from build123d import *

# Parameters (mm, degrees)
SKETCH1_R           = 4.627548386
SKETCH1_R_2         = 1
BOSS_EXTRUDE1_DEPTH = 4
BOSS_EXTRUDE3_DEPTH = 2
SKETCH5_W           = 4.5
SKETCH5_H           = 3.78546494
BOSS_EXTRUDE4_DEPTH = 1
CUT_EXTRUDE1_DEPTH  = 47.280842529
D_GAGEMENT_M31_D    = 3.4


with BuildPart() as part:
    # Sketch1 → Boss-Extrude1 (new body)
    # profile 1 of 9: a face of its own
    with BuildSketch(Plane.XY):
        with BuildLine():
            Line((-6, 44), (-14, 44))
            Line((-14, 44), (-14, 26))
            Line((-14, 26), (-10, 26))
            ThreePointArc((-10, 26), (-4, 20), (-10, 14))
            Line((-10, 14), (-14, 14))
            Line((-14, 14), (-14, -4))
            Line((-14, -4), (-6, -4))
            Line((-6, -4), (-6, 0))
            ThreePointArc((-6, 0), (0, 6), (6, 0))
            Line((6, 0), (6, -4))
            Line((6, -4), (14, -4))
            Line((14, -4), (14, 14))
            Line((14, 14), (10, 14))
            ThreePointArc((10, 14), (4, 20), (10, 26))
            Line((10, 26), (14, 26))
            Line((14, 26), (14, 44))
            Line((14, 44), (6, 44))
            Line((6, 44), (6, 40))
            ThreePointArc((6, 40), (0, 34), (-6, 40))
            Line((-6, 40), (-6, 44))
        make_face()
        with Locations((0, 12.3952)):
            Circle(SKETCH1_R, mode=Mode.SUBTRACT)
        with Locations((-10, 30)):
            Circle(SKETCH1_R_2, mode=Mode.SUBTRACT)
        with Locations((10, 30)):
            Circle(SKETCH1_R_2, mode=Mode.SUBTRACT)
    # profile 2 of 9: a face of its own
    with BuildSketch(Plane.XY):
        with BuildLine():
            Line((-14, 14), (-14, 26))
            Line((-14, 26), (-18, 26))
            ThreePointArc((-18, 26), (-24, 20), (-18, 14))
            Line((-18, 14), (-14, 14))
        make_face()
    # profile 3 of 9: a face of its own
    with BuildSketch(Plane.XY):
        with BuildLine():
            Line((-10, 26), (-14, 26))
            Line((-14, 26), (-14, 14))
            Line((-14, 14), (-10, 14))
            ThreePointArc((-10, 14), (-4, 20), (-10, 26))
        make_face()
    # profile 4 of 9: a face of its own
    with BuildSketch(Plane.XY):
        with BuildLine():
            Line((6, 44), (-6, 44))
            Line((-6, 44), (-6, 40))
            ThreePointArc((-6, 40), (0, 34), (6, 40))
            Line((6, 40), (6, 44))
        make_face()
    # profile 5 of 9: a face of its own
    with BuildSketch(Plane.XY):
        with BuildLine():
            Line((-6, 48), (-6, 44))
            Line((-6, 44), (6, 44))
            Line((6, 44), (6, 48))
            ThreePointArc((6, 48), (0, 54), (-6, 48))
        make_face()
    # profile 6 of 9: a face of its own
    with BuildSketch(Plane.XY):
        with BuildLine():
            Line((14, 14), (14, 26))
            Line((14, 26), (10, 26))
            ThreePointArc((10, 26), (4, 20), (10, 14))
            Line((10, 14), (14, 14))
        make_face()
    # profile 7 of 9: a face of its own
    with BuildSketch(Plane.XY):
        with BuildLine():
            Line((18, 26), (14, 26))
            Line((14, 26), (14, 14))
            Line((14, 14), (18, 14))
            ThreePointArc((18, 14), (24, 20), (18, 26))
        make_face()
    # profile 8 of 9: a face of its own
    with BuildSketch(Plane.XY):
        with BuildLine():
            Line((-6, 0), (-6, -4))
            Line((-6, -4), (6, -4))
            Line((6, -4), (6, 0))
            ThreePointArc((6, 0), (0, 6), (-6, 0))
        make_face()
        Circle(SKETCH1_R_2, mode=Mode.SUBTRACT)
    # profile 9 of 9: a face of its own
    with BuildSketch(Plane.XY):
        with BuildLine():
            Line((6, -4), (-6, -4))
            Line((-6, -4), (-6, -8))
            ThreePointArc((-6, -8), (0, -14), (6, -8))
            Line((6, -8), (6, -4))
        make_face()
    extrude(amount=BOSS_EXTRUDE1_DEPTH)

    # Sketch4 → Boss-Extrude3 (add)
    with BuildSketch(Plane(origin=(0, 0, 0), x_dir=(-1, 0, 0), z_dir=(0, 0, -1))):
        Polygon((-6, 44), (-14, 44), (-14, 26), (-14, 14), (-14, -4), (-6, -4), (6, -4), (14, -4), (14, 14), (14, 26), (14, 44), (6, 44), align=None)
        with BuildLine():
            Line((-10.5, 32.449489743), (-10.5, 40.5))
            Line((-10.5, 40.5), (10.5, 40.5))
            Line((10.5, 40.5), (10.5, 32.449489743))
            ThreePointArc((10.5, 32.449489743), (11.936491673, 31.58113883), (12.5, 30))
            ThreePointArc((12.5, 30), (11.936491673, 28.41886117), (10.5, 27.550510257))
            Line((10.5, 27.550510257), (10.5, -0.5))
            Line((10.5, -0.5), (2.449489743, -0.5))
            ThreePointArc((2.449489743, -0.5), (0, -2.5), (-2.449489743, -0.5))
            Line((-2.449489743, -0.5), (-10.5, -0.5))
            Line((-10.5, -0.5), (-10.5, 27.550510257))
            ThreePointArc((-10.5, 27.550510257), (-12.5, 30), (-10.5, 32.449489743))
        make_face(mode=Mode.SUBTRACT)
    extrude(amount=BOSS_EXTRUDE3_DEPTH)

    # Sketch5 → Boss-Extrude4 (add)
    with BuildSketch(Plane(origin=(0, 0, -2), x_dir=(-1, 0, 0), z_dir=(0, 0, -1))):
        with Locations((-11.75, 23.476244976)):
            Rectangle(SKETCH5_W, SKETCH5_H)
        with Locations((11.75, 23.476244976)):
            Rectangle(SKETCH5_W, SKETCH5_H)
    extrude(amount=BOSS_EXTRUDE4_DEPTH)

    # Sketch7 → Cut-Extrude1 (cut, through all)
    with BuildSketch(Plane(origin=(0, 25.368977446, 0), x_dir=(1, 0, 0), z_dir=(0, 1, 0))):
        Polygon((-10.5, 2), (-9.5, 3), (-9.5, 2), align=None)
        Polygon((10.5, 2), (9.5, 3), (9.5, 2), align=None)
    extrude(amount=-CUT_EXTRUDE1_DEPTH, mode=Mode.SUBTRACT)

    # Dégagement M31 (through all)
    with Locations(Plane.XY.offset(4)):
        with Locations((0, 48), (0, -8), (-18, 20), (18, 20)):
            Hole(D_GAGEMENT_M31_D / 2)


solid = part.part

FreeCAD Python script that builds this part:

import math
import FreeCAD as App
import Part
import Sketcher


def add_polygon(sketch, points):
    """Adds a closed chain of lines whose ends are joined by coincident constraints."""
    first, n = sketch.GeometryCount, len(points)
    for a, b in zip(points, points[1:] + points[:1]):
        sketch.addGeometry(Part.LineSegment(App.Vector(*a, 0), App.Vector(*b, 0)), False)
    for i in range(n):
        sketch.addConstraint(Sketcher.Constraint("Coincident", first + i, 2, first + (i + 1) % n, 1))

doc = App.newDocument("Part")
body = doc.addObject("PartDesign::Body", "Body")

sketch1 = doc.addObject("Sketcher::SketchObject", "Sketch")
body.addObject(sketch1)
sketch1.AttachmentSupport = (doc.XY_Plane, [""])
sketch1.MapMode = "FlatFace"
sketch1.addGeometry(Part.LineSegment(App.Vector(-6, 44, 0), App.Vector(-14, 44, 0)), False)
sketch1.addGeometry(Part.LineSegment(App.Vector(-14, 44, 0), App.Vector(-14, 26, 0)), False)
sketch1.addGeometry(Part.LineSegment(App.Vector(-14, 26, 0), App.Vector(-18, 26, 0)), False)
sketch1.addGeometry(Part.ArcOfCircle(Part.Circle(App.Vector(-18, 20, 0), App.Vector(0, 0, 1), 6), math.radians(90), math.radians(270)), False)
sketch1.addGeometry(Part.LineSegment(App.Vector(-18, 14, 0), App.Vector(-14, 14, 0)), False)
sketch1.addGeometry(Part.LineSegment(App.Vector(-14, 14, 0), App.Vector(-14, -4, 0)), False)
sketch1.addGeometry(Part.LineSegment(App.Vector(-14, -4, 0), App.Vector(-6, -4, 0)), False)
sketch1.addGeometry(Part.LineSegment(App.Vector(-6, -4, 0), App.Vector(-6, -8, 0)), False)
sketch1.addGeometry(Part.ArcOfCircle(Part.Circle(App.Vector(0, -8, 0), App.Vector(0, 0, 1), 6), math.radians(180), math.radians(360)), False)
sketch1.addGeometry(Part.LineSegment(App.Vector(6, -8, 0), App.Vector(6, -4, 0)), False)
sketch1.addGeometry(Part.LineSegment(App.Vector(6, -4, 0), App.Vector(14, -4, 0)), False)
sketch1.addGeometry(Part.LineSegment(App.Vector(14, -4, 0), App.Vector(14, 14, 0)), False)
sketch1.addGeometry(Part.LineSegment(App.Vector(14, 14, 0), App.Vector(18, 14, 0)), False)
sketch1.addGeometry(Part.ArcOfCircle(Part.Circle(App.Vector(18, 20, 0), App.Vector(0, 0, 1), 6), math.radians(-90), math.radians(90)), False)
sketch1.addGeometry(Part.LineSegment(App.Vector(18, 26, 0), App.Vector(14, 26, 0)), False)
sketch1.addGeometry(Part.LineSegment(App.Vector(14, 26, 0), App.Vector(14, 44, 0)), False)
sketch1.addGeometry(Part.LineSegment(App.Vector(14, 44, 0), App.Vector(6, 44, 0)), False)
sketch1.addGeometry(Part.LineSegment(App.Vector(6, 44, 0), App.Vector(6, 48, 0)), False)
sketch1.addGeometry(Part.ArcOfCircle(Part.Circle(App.Vector(0, 48, 0), App.Vector(0, 0, 1), 6), math.radians(0), math.radians(180)), False)
sketch1.addGeometry(Part.LineSegment(App.Vector(-6, 48, 0), App.Vector(-6, 44, 0)), False)
sketch1.addGeometry(Part.Circle(App.Vector(0, 12.3952, 0), App.Vector(0, 0, 1), 4.627548), False)
sketch1.addGeometry(Part.Circle(App.Vector(-10, 30, 0), App.Vector(0, 0, 1), 1), False)
sketch1.addGeometry(Part.Circle(App.Vector(10, 30, 0), App.Vector(0, 0, 1), 1), False)
sketch1.addGeometry(Part.Circle(App.Vector(0, 0, 0), App.Vector(0, 0, 1), 1), False)
sketch1.addConstraint(Sketcher.Constraint("Coincident", 0, 2, 1, 1))
sketch1.addConstraint(Sketcher.Constraint("Coincident", 1, 2, 2, 1))
sketch1.addConstraint(Sketcher.Constraint("Tangent", 2, 2, 3, 1))
sketch1.addConstraint(Sketcher.Constraint("Tangent", 3, 2, 4, 1))
sketch1.addConstraint(Sketcher.Constraint("Coincident", 4, 2, 5, 1))
sketch1.addConstraint(Sketcher.Constraint("Coincident", 5, 2, 6, 1))
sketch1.addConstraint(Sketcher.Constraint("Coincident", 6, 2, 7, 1))
sketch1.addConstraint(Sketcher.Constraint("Tangent", 7, 2, 8, 1))
sketch1.addConstraint(Sketcher.Constraint("Tangent", 8, 2, 9, 1))
sketch1.addConstraint(Sketcher.Constraint("Coincident", 9, 2, 10, 1))
sketch1.addConstraint(Sketcher.Constraint("Coincident", 10, 2, 11, 1))
sketch1.addConstraint(Sketcher.Constraint("Coincident", 11, 2, 12, 1))
sketch1.addConstraint(Sketcher.Constraint("Tangent", 12, 2, 13, 1))
sketch1.addConstraint(Sketcher.Constraint("Tangent", 13, 2, 14, 1))
sketch1.addConstraint(Sketcher.Constraint("Coincident", 14, 2, 15, 1))
sketch1.addConstraint(Sketcher.Constraint("Coincident", 15, 2, 16, 1))
sketch1.addConstraint(Sketcher.Constraint("Coincident", 16, 2, 17, 1))
sketch1.addConstraint(Sketcher.Constraint("Tangent", 17, 2, 18, 1))
sketch1.addConstraint(Sketcher.Constraint("Tangent", 18, 2, 19, 1))
sketch1.addConstraint(Sketcher.Constraint("Coincident", 19, 2, 0, 1))
sketch1.addConstraint(Sketcher.Constraint("Horizontal", 0))
sketch1.addConstraint(Sketcher.Constraint("Vertical", 1))
sketch1.addConstraint(Sketcher.Constraint("Horizontal", 2))
sketch1.addConstraint(Sketcher.Constraint("Horizontal", 4))
sketch1.addConstraint(Sketcher.Constraint("Vertical", 5))
sketch1.addConstraint(Sketcher.Constraint("Horizontal", 6))
sketch1.addConstraint(Sketcher.Constraint("Vertical", 7))
sketch1.addConstraint(Sketcher.Constraint("Vertical", 9))
sketch1.addConstraint(Sketcher.Constraint("Horizontal", 10))
sketch1.addConstraint(Sketcher.Constraint("Vertical", 11))
sketch1.addConstraint(Sketcher.Constraint("Horizontal", 12))
sketch1.addConstraint(Sketcher.Constraint("Horizontal", 14))
sketch1.addConstraint(Sketcher.Constraint("Vertical", 15))
sketch1.addConstraint(Sketcher.Constraint("Horizontal", 16))
sketch1.addConstraint(Sketcher.Constraint("Vertical", 17))
sketch1.addConstraint(Sketcher.Constraint("Vertical", 19))
sketch1.addConstraint(Sketcher.Constraint("Coincident", 23, 3, -1, 1))
sketch1.addConstraint(Sketcher.Constraint("Equal", 3, 8))
sketch1.addConstraint(Sketcher.Constraint("Equal", 8, 13))
sketch1.addConstraint(Sketcher.Constraint("Equal", 13, 18))
sketch1.addConstraint(Sketcher.Constraint("Equal", 21, 22))
sketch1.addConstraint(Sketcher.Constraint("Equal", 22, 23))
sketch1.addConstraint(Sketcher.Constraint("Symmetric", 3, 3, 13, 3, -2))
sketch1.addConstraint(Sketcher.Constraint("Symmetric", 21, 3, 22, 3, -2))
sketch1.addConstraint(Sketcher.Constraint("Symmetric", 6, 2, 9, 2, -2))
sketch1.addConstraint(Sketcher.Constraint("Symmetric", 0, 2, 15, 2, -2))
sketch1.addConstraint(Sketcher.Constraint("PointOnObject", 18, 3, -2))
sketch1.addConstraint(Sketcher.Constraint("PointOnObject", 20, 3, -2))
sketch1.addConstraint(Sketcher.Constraint("Vertical", 1, 2, 4, 2))
sketch1.addConstraint(Sketcher.Constraint("Vertical", 11, 2, 14, 2))
sketch1.addConstraint(Sketcher.Constraint("Equal", 1, 5))
sketch1.addConstraint(Sketcher.Constraint("Equal", 14, 7))
sketch1.addConstraint(Sketcher.Constraint("Equal", 9, 17))
sketch1.addConstraint(Sketcher.Constraint("Diameter", 21, 2.0))
sketch1.addConstraint(Sketcher.Constraint("Radius", 3, 6.0))
sketch1.addConstraint(Sketcher.Constraint("DistanceX", 0, 2, 0, 1, 8.0))
sketch1.addConstraint(Sketcher.Constraint("DistanceX", 2, 2, 2, 1, 4.0))
sketch1.addConstraint(Sketcher.Constraint("DistanceY", 1, 2, 1, 1, 18.0))
sketch1.addConstraint(Sketcher.Constraint("DistanceY", -1, 1, 3, 3, 20.0))
sketch1.addConstraint(Sketcher.Constraint("DistanceX", 21, 3, -1, 1, 10.0))
sketch1.addConstraint(Sketcher.Constraint("DistanceY", -1, 1, 21, 3, 30.0))
sketch1.addConstraint(Sketcher.Constraint("Diameter", 20, 9.255097))
sketch1.addConstraint(Sketcher.Constraint("DistanceY", -1, 1, 20, 3, 12.3952))
pad1 = doc.addObject("PartDesign::Pad", "Pad")
body.addObject(pad1)
pad1.Profile = sketch1
pad1.Length = 4

sketch2 = doc.addObject("Sketcher::SketchObject", "Sketch001")
body.addObject(sketch2)
sketch2.AttachmentSupport = (doc.XY_Plane, [""])
sketch2.MapMode = "FlatFace"
add_polygon(sketch2, [(14, 44), (14, -4), (-14, -4), (-14, 44)])
sketch2.addGeometry(Part.ArcOfCircle(Part.Circle(App.Vector(10, 30, 0), App.Vector(0, 0, 1), 2.5), math.radians(-78.463041), math.radians(78.463041)), False)
sketch2.addGeometry(Part.LineSegment(App.Vector(10.5, 32.44949, 0), App.Vector(10.5, 40.5, 0)), False)
sketch2.addGeometry(Part.LineSegment(App.Vector(10.5, 40.5, 0), App.Vector(-10.5, 40.5, 0)), False)
sketch2.addGeometry(Part.LineSegment(App.Vector(-10.5, 40.5, 0), App.Vector(-10.5, 32.44949, 0)), False)
sketch2.addGeometry(Part.ArcOfCircle(Part.Circle(App.Vector(-10, 30, 0), App.Vector(0, 0, 1), 2.5), math.radians(101.536959), math.radians(180)), False)
sketch2.addGeometry(Part.ArcOfCircle(Part.Circle(App.Vector(-10, 30, 0), App.Vector(0, 0, 1), 2.5), math.radians(-180), math.radians(-101.536959)), False)
sketch2.addGeometry(Part.LineSegment(App.Vector(-10.5, 27.55051, 0), App.Vector(-10.5, -0.5, 0)), False)
sketch2.addGeometry(Part.LineSegment(App.Vector(-10.5, -0.5, 0), App.Vector(-2.44949, -0.5, 0)), False)
sketch2.addGeometry(Part.ArcOfCircle(Part.Circle(App.Vector(0, 0, 0), App.Vector(0, 0, 1), 2.5), math.radians(-168.463041), math.radians(-11.536959)), False)
sketch2.addGeometry(Part.LineSegment(App.Vector(2.44949, -0.5, 0), App.Vector(10.5, -0.5, 0)), False)
sketch2.addGeometry(Part.LineSegment(App.Vector(10.5, -0.5, 0), App.Vector(10.5, 27.55051, 0)), False)
sketch2.addConstraint(Sketcher.Constraint("Coincident", 4, 2, 5, 1))
sketch2.addConstraint(Sketcher.Constraint("Coincident", 5, 2, 6, 1))
sketch2.addConstraint(Sketcher.Constraint("Coincident", 6, 2, 7, 1))
sketch2.addConstraint(Sketcher.Constraint("Coincident", 7, 2, 8, 1))
sketch2.addConstraint(Sketcher.Constraint("Tangent", 8, 2, 9, 1))
sketch2.addConstraint(Sketcher.Constraint("Coincident", 9, 2, 10, 1))
sketch2.addConstraint(Sketcher.Constraint("Coincident", 10, 2, 11, 1))
sketch2.addConstraint(Sketcher.Constraint("Coincident", 11, 2, 12, 1))
sketch2.addConstraint(Sketcher.Constraint("Coincident", 12, 2, 13, 1))
sketch2.addConstraint(Sketcher.Constraint("Coincident", 13, 2, 14, 1))
sketch2.addConstraint(Sketcher.Constraint("Coincident", 14, 2, 4, 1))
sketch2.addConstraint(Sketcher.Constraint("Vertical", 0))
sketch2.addConstraint(Sketcher.Constraint("Horizontal", 1))
sketch2.addConstraint(Sketcher.Constraint("Vertical", 2))
sketch2.addConstraint(Sketcher.Constraint("Horizontal", 3))
sketch2.addConstraint(Sketcher.Constraint("Vertical", 5))
sketch2.addConstraint(Sketcher.Constraint("Horizontal", 6))
sketch2.addConstraint(Sketcher.Constraint("Vertical", 7))
sketch2.addConstraint(Sketcher.Constraint("Vertical", 10))
sketch2.addConstraint(Sketcher.Constraint("Horizontal", 11))
sketch2.addConstraint(Sketcher.Constraint("Horizontal", 13))
sketch2.addConstraint(Sketcher.Constraint("Vertical", 14))
sketch2.addConstraint(Sketcher.Constraint("Coincident", 12, 3, -1, 1))
sketch2.addConstraint(Sketcher.Constraint("Equal", 4, 8))
sketch2.addConstraint(Sketcher.Constraint("Equal", 8, 9))
sketch2.addConstraint(Sketcher.Constraint("Equal", 9, 12))
sketch2.addConstraint(Sketcher.Constraint("Symmetric", 4, 3, 8, 3, -2))
sketch2.addConstraint(Sketcher.Constraint("Symmetric", 10, 2, 13, 2, -2))
sketch2.addConstraint(Sketcher.Constraint("Horizontal", 4, 2, 7, 2))
sketch2.addConstraint(Sketcher.Constraint("Horizontal", 9, 3, 8, 2))
sketch2.addConstraint(Sketcher.Constraint("Vertical", 7, 2, 9, 2))
sketch2.addConstraint(Sketcher.Constraint("Equal", 13, 5))
sketch2.addConstraint(Sketcher.Constraint("Radius", 4, 2.5))
sketch2.addConstraint(Sketcher.Constraint("DistanceX", 1, 2, 1, 1, 28.0))
sketch2.addConstraint(Sketcher.Constraint("DistanceX", 6, 2, 6, 1, 21.0))
sketch2.addConstraint(Sketcher.Constraint("DistanceY", 0, 2, 0, 1, 48.0))
sketch2.addConstraint(Sketcher.Constraint("DistanceX", -1, 1, 4, 3, 10.0))
sketch2.addConstraint(Sketcher.Constraint("DistanceY", -1, 1, 4, 3, 30.0))
sketch2.addConstraint(Sketcher.Constraint("DistanceX", -1, 1, 0, 2, 14.0))
sketch2.addConstraint(Sketcher.Constraint("DistanceY", 0, 2, -1, 1, 4.0))
sketch2.addConstraint(Sketcher.Constraint("DistanceY", -1, 1, 5, 2, 40.5))
pad2 = doc.addObject("PartDesign::Pad", "Pad001")
body.addObject(pad2)
pad2.Profile = sketch2
pad2.Length = 2
pad2.Reversed = True

sketch3 = doc.addObject("Sketcher::SketchObject", "Sketch002")
body.addObject(sketch3)
sketch3.AttachmentSupport = (doc.XY_Plane, [""])
sketch3.MapMode = "FlatFace"
sketch3.AttachmentOffset = App.Placement(App.Vector(0, 0, -2), App.Rotation())
add_polygon(sketch3, [(14, 25.368977), (14, 21.583513), (9.5, 21.583513), (9.5, 25.368977)])
add_polygon(sketch3, [(-9.5, 25.368977), (-9.5, 21.583513), (-14, 21.583513), (-14, 25.368977)])
sketch3.addConstraint(Sketcher.Constraint("Vertical", 0))
sketch3.addConstraint(Sketcher.Constraint("Horizontal", 1))
sketch3.addConstraint(Sketcher.Constraint("Vertical", 2))
sketch3.addConstraint(Sketcher.Constraint("Horizontal", 3))
sketch3.addConstraint(Sketcher.Constraint("Vertical", 4))
sketch3.addConstraint(Sketcher.Constraint("Horizontal", 5))
sketch3.addConstraint(Sketcher.Constraint("Vertical", 6))
sketch3.addConstraint(Sketcher.Constraint("Horizontal", 7))
sketch3.addConstraint(Sketcher.Constraint("Symmetric", 1, 2, 4, 2, -2))
sketch3.addConstraint(Sketcher.Constraint("Symmetric", 3, 2, 6, 2, -2))
sketch3.addConstraint(Sketcher.Constraint("DistanceX", 1, 2, 1, 1, 4.5))
sketch3.addConstraint(Sketcher.Constraint("DistanceX", -1, 1, 0, 2, 14.0))
sketch3.addConstraint(Sketcher.Constraint("DistanceY", 0, 2, 0, 1, 3.785465))
sketch3.addConstraint(Sketcher.Constraint("DistanceY", -1, 1, 0, 2, 21.583513))
pad3 = doc.addObject("PartDesign::Pad", "Pad002")
body.addObject(pad3)
pad3.Profile = sketch3
pad3.Length = 1
pad3.Reversed = True

sketch4 = doc.addObject("Sketcher::SketchObject", "Sketch003")
body.addObject(sketch4)
sketch4.AttachmentSupport = (doc.XZ_Plane, [""])
sketch4.MapMode = "FlatFace"
sketch4.AttachmentOffset = App.Placement(App.Vector(0, 0, -25.368977), App.Rotation())
add_polygon(sketch4, [(-9.5, -3), (-10.5, -2), (-9.5, -2)])
add_polygon(sketch4, [(10.5, -2), (9.5, -3), (9.5, -2)])
sketch4.addConstraint(Sketcher.Constraint("Horizontal", 1))
sketch4.addConstraint(Sketcher.Constraint("Vertical", 2))
sketch4.addConstraint(Sketcher.Constraint("Vertical", 4))
sketch4.addConstraint(Sketcher.Constraint("Horizontal", 5))
sketch4.addConstraint(Sketcher.Constraint("Symmetric", 2, 2, 3, 2, -2))
sketch4.addConstraint(Sketcher.Constraint("Symmetric", 0, 2, 5, 2, -2))
sketch4.addConstraint(Sketcher.Constraint("Perpendicular", 0, 3))
sketch4.addConstraint(Sketcher.Constraint("DistanceX", 1, 1, 1, 2, 1.0))
sketch4.addConstraint(Sketcher.Constraint("DistanceY", 0, 2, -1, 1, 2.0))
sketch4.addConstraint(Sketcher.Constraint("DistanceX", 2, 2, 3, 2, 19.0))
pocket1 = doc.addObject("PartDesign::Pocket", "Pocket")
body.addObject(pocket1)
pocket1.Profile = sketch4
pocket1.Type = "ThroughAll"
pocket1.Reversed = True

sketch5 = doc.addObject("Sketcher::SketchObject", "Sketch004")
body.addObject(sketch5)
sketch5.AttachmentSupport = (doc.XY_Plane, [""])
sketch5.MapMode = "FlatFace"
sketch5.AttachmentOffset = App.Placement(App.Vector(0, 0, 4), App.Rotation())
sketch5.addGeometry(Part.Circle(App.Vector(0, 48, 0), App.Vector(0, 0, 1), 1.7), False)
sketch5.addGeometry(Part.Circle(App.Vector(0, -8, 0), App.Vector(0, 0, 1), 1.7), False)
sketch5.addGeometry(Part.Circle(App.Vector(-18, 20, 0), App.Vector(0, 0, 1), 1.7), False)
sketch5.addGeometry(Part.Circle(App.Vector(18, 20, 0), App.Vector(0, 0, 1), 1.7), False)
sketch5.addConstraint(Sketcher.Constraint("Equal", 0, 1))
sketch5.addConstraint(Sketcher.Constraint("Equal", 1, 2))
sketch5.addConstraint(Sketcher.Constraint("Equal", 2, 3))
sketch5.addConstraint(Sketcher.Constraint("Symmetric", 2, 3, 3, 3, -2))
sketch5.addConstraint(Sketcher.Constraint("PointOnObject", 0, 3, -2))
sketch5.addConstraint(Sketcher.Constraint("PointOnObject", 1, 3, -2))
sketch5.addConstraint(Sketcher.Constraint("Diameter", 0, 3.4))
sketch5.addConstraint(Sketcher.Constraint("DistanceY", -1, 1, 0, 3, 48.0))
sketch5.addConstraint(Sketcher.Constraint("DistanceY", 1, 3, -1, 1, 8.0))
sketch5.addConstraint(Sketcher.Constraint("DistanceX", 2, 3, -1, 1, 18.0))
sketch5.addConstraint(Sketcher.Constraint("DistanceY", -1, 1, 2, 3, 20.0))
doc.recompute()
hole = doc.addObject("PartDesign::Hole", "Hole")
body.addObject(hole)
hole.Profile = sketch5
hole.ThreadType = "None"
hole.Diameter = 3.4
hole.DepthType = "ThroughAll"

doc.recompute()
